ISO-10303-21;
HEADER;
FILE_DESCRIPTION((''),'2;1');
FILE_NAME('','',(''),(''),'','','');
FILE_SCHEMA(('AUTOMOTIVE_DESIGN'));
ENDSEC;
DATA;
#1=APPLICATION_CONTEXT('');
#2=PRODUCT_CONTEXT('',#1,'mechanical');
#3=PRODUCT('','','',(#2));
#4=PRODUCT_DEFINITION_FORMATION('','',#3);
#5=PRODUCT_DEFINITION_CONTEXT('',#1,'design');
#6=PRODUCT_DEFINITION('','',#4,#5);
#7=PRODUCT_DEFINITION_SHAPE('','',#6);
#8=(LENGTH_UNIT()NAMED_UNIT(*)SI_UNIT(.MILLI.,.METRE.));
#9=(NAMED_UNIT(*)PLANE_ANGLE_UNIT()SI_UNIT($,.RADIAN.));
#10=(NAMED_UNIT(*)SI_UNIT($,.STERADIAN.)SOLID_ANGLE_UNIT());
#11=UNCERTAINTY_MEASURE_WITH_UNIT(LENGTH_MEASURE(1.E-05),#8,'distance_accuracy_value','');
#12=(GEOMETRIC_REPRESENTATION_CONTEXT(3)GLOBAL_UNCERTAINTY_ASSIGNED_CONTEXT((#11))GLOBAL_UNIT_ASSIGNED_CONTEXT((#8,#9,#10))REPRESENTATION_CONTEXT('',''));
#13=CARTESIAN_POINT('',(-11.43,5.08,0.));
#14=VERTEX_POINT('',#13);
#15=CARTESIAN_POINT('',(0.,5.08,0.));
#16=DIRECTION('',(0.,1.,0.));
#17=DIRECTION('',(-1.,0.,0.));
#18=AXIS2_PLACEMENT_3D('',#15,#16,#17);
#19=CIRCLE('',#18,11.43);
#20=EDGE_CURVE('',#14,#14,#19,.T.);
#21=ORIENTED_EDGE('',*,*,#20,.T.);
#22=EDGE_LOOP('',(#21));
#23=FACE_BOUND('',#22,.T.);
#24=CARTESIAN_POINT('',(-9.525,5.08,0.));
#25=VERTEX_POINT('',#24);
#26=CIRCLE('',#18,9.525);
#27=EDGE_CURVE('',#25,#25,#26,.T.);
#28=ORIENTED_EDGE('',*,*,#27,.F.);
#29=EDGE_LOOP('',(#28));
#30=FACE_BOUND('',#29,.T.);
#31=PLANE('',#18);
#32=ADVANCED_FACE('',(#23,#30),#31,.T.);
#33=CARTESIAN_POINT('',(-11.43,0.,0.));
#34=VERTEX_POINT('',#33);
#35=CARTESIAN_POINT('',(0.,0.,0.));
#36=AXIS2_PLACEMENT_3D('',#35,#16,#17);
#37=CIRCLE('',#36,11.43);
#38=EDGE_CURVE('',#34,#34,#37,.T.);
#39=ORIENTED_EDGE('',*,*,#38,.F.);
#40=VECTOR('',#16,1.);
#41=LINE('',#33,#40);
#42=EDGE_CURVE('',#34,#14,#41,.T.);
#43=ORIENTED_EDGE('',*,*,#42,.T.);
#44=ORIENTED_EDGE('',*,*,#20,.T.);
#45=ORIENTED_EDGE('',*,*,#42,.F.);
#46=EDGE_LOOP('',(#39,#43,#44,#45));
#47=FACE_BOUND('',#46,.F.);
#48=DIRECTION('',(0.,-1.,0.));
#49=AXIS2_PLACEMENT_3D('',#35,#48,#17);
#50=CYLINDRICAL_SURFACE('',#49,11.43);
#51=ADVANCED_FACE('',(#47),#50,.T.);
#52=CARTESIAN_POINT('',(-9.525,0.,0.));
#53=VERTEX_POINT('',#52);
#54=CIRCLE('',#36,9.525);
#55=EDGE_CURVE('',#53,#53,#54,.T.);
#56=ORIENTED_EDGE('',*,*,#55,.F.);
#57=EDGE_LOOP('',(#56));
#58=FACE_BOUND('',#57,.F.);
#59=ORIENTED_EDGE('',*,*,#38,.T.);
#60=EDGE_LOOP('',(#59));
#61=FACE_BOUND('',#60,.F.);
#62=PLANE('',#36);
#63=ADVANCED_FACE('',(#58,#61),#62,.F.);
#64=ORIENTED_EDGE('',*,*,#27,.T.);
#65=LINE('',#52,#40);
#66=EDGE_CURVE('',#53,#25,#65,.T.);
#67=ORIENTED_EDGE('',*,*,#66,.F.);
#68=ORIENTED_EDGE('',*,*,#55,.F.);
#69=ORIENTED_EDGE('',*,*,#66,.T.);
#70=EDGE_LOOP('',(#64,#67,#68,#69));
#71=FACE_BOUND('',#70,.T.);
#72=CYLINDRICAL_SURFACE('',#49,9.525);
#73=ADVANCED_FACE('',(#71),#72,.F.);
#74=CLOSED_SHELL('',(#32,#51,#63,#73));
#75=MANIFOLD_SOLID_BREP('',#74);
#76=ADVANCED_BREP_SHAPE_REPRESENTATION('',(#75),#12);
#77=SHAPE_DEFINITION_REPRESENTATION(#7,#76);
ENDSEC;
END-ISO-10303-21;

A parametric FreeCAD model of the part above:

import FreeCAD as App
import Part
import Sketcher
Q = App.Units.Quantity

doc = App.newDocument("Part")
body = doc.addObject("PartDesign::Body", "Body")

sketch1 = body.newObject("Sketcher::SketchObject", "Sketch")
sketch1.AttachmentSupport = (doc.getObject("XZ_Plane"), [""])
sketch1.MapMode = "FlatFace"
sketch1.addGeometry([
    Part.Circle(App.Vector(0, 0, 0), App.Vector(0, 0, 1), 11),
    Part.Circle(App.Vector(0, 0, 0), App.Vector(0, 0, 1), 10),
], False)
sketch1.addConstraint([
    Sketcher.Constraint("Coincident", 0, 3, -1, 1),
    Sketcher.Constraint("Coincident", 1, 3, -1, 1),
    Sketcher.Constraint("Diameter", 0, Q("0.9 in")),
    Sketcher.Constraint("Diameter", 1, Q("0.75 in")),
])
pad1 = body.newObject("PartDesign::Pad", "Pad")
pad1.Profile = sketch1
pad1.Length = Q("0.2 in")
pad1.Reversed = True

doc.recompute()
